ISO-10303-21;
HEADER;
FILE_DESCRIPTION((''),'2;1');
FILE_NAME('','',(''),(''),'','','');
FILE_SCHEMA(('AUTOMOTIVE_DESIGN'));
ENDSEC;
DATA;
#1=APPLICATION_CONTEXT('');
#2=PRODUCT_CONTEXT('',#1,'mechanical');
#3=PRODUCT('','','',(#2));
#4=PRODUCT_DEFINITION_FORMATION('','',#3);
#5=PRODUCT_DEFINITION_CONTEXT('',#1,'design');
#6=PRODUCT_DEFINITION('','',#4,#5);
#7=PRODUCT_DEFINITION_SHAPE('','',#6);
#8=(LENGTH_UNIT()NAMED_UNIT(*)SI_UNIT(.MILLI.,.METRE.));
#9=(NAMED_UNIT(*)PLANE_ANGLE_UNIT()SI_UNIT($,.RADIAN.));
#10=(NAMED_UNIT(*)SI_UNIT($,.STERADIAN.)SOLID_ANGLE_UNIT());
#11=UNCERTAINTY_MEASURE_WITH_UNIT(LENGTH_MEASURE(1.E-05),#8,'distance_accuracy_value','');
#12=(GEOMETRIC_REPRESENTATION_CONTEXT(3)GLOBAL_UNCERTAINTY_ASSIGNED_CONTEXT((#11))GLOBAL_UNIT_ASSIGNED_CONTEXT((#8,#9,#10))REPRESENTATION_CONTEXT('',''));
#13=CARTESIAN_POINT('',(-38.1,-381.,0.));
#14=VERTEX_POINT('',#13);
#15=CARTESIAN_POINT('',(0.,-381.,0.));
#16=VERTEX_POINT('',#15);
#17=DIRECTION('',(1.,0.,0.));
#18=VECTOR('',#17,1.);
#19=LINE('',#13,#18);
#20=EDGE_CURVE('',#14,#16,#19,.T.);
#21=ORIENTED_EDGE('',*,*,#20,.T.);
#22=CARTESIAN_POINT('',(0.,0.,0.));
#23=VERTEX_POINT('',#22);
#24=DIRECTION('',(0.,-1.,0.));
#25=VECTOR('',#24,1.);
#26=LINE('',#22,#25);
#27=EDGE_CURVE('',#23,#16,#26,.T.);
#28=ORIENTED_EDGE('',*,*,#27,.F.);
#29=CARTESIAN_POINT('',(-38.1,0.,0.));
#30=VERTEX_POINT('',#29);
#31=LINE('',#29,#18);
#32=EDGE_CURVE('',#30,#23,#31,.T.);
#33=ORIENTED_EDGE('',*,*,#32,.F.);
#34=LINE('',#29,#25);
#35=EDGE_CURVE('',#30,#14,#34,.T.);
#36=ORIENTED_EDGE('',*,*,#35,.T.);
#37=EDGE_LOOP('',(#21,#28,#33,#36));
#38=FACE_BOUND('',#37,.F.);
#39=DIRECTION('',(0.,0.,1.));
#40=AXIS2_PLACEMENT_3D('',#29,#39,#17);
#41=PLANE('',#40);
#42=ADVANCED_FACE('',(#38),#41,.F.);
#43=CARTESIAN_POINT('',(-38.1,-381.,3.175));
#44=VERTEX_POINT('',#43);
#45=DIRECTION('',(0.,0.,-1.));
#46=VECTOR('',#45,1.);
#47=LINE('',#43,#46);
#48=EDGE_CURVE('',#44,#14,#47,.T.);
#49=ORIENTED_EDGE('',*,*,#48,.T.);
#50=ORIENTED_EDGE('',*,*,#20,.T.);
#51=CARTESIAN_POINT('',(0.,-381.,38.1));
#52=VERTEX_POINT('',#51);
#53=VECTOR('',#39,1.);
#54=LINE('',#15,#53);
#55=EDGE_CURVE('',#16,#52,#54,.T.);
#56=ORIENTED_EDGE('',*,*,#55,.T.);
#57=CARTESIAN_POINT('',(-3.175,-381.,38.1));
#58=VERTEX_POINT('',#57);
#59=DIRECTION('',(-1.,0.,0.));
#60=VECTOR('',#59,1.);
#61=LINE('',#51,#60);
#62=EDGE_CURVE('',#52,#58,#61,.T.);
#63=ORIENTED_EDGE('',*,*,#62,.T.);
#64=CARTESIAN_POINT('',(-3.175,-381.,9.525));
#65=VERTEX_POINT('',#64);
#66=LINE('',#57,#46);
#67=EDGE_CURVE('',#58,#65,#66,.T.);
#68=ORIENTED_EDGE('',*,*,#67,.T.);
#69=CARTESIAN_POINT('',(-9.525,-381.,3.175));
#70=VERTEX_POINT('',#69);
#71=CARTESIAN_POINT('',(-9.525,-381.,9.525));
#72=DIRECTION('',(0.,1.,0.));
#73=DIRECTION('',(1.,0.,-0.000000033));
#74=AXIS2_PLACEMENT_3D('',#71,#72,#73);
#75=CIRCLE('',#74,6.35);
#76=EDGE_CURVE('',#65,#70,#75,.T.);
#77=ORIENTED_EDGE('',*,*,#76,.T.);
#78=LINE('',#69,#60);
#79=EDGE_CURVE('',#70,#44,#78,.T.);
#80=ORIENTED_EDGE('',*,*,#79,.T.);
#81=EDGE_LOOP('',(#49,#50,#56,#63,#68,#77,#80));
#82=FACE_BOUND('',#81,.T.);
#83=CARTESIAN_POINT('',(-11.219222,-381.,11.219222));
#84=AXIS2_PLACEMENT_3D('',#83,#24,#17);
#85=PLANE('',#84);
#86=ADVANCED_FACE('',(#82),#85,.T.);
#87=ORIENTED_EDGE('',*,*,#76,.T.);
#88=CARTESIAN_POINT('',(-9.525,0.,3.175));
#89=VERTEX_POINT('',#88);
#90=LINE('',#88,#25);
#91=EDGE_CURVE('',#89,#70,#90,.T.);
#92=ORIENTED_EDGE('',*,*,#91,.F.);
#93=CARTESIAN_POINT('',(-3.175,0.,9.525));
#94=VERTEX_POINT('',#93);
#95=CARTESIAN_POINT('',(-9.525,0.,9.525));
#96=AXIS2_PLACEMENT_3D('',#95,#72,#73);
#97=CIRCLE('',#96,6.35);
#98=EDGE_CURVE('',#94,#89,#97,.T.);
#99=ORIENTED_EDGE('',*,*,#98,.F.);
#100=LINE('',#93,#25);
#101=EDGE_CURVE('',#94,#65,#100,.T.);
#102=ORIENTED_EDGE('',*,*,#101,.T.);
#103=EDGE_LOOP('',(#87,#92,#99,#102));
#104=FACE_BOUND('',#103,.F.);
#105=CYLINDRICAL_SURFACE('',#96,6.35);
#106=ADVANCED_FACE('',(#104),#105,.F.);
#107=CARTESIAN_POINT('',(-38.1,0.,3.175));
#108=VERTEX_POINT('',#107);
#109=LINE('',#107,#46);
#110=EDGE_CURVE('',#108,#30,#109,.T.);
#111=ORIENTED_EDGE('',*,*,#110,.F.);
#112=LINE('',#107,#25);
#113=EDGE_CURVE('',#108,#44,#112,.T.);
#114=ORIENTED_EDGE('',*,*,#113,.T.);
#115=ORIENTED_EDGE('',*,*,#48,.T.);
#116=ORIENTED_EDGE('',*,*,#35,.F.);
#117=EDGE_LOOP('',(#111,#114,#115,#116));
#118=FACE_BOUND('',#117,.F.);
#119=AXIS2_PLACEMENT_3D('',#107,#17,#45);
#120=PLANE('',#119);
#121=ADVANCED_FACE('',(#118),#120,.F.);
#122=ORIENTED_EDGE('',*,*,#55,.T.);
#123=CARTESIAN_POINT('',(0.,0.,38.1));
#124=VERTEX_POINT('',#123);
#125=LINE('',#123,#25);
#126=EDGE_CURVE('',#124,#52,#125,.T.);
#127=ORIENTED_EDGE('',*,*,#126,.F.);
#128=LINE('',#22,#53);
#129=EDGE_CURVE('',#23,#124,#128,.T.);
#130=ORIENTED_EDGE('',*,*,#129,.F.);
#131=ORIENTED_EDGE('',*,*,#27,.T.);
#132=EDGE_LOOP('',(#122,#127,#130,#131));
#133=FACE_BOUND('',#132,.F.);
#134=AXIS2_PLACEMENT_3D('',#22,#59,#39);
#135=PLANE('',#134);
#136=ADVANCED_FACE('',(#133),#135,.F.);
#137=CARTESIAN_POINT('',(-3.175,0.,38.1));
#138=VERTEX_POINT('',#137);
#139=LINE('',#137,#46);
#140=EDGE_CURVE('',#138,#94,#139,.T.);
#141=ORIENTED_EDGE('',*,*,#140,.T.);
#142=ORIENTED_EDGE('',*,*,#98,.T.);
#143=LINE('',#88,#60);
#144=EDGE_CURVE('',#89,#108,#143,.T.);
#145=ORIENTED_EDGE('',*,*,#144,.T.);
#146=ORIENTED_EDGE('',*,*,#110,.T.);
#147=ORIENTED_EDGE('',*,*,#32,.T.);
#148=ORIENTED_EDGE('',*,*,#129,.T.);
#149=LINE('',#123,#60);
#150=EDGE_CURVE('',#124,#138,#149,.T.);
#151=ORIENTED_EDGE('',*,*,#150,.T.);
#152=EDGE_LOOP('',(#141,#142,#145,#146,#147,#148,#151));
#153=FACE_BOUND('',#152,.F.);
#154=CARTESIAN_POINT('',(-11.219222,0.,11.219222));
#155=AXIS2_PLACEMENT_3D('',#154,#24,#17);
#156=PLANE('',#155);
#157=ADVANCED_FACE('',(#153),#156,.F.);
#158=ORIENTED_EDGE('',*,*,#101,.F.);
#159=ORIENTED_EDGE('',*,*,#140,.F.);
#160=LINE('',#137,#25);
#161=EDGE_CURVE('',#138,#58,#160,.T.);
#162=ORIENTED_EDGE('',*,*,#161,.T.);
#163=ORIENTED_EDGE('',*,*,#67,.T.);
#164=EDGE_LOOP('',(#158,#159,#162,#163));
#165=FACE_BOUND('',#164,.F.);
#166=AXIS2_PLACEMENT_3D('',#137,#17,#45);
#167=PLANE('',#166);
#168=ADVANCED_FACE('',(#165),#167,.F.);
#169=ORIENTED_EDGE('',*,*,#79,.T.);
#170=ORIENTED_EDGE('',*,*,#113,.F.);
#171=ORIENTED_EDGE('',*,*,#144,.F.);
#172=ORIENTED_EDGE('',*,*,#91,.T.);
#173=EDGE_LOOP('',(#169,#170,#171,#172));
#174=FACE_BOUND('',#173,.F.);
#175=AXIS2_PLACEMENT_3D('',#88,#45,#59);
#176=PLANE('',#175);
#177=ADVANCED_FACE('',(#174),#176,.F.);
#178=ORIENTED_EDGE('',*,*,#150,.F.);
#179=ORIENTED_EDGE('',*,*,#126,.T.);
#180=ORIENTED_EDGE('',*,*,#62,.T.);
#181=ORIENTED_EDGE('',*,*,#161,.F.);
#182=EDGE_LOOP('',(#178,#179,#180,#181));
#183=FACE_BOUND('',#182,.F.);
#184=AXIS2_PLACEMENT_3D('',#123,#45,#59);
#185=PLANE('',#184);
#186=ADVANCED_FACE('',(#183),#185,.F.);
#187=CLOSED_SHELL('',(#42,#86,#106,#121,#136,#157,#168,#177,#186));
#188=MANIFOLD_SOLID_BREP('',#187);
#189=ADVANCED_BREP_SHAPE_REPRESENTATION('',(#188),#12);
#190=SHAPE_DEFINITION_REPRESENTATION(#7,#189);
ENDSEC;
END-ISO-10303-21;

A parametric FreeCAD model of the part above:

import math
import FreeCAD as App
import Part
import Sketcher
Q = App.Units.Quantity

doc = App.newDocument("Part")
body = doc.addObject("PartDesign::Body", "Body")

# Sketch on XZ plane
sketch1 = body.newObject("Sketcher::SketchObject", "Sketch")
sketch1.AttachmentSupport = (doc.getObject("XZ_Plane"), [""])
sketch1.MapMode = "FlatFace"
sketch1.addGeometry(Part.LineSegment(App.Vector(0, 0, 0), App.Vector(0, 38.1, 0)), False)
sketch1.addGeometry(Part.LineSegment(App.Vector(0, 38.1, 0), App.Vector(-3.2, 38.1, 0)), False)
sketch1.addGeometry(Part.LineSegment(App.Vector(-3.2, 38.1, 0), App.Vector(-3.2, 9.5, 0)), False)
sketch1.addGeometry(Part.ArcOfCircle(Part.Circle(App.Vector(-9.5, 9.5, 0), App.Vector(0, 0, 1), 6.4), math.radians(-90), math.radians(0)), False)
sketch1.addGeometry(Part.LineSegment(App.Vector(-9.5, 3.2, 0), App.Vector(-38.1, 3.2, 0)), False)
sketch1.addGeometry(Part.LineSegment(App.Vector(-38.1, 3.2, 0), App.Vector(-38.1, 0, 0)), False)
sketch1.addGeometry(Part.LineSegment(App.Vector(-38.1, 0, 0), App.Vector(0, 0, 0)), False)
sketch1.addConstraint(Sketcher.Constraint("Coincident", 0, 2, 1, 1))
sketch1.addConstraint(Sketcher.Constraint("Coincident", 1, 2, 2, 1))
sketch1.addConstraint(Sketcher.Constraint("Tangent", 2, 2, 3, 2))
sketch1.addConstraint(Sketcher.Constraint("Tangent", 3, 1, 4, 1))
sketch1.addConstraint(Sketcher.Constraint("Coincident", 4, 2, 5, 1))
sketch1.addConstraint(Sketcher.Constraint("Coincident", 5, 2, 6, 1))
sketch1.addConstraint(Sketcher.Constraint("Coincident", 6, 2, 0, 1))
sketch1.addConstraint(Sketcher.Constraint("Vertical", 0))
sketch1.addConstraint(Sketcher.Constraint("Horizontal", 1))
sketch1.addConstraint(Sketcher.Constraint("Vertical", 2))
sketch1.addConstraint(Sketcher.Constraint("Horizontal", 4))
sketch1.addConstraint(Sketcher.Constraint("Vertical", 5))
sketch1.addConstraint(Sketcher.Constraint("Horizontal", 6))
sketch1.addConstraint(Sketcher.Constraint("Coincident", 6, 2, -1, 1))
sketch1.addConstraint(Sketcher.Constraint("Equal", 6, 0))
sketch1.addConstraint(Sketcher.Constraint("Equal", 4, 2))
sketch1.addConstraint(Sketcher.Constraint("Radius", 3, Q("0.25 in")))
sketch1.addConstraint(Sketcher.Constraint("DistanceX", 6, 1, 6, 2, Q("1.5 in")))
sketch1.addConstraint(Sketcher.Constraint("DistanceX", 1, 2, 1, 1, Q("0.125 in")))
pad1 = body.newObject("PartDesign::Pad", "Pad")
pad1.Profile = sketch1
pad1.Length = Q("15 in")

doc.recompute()
